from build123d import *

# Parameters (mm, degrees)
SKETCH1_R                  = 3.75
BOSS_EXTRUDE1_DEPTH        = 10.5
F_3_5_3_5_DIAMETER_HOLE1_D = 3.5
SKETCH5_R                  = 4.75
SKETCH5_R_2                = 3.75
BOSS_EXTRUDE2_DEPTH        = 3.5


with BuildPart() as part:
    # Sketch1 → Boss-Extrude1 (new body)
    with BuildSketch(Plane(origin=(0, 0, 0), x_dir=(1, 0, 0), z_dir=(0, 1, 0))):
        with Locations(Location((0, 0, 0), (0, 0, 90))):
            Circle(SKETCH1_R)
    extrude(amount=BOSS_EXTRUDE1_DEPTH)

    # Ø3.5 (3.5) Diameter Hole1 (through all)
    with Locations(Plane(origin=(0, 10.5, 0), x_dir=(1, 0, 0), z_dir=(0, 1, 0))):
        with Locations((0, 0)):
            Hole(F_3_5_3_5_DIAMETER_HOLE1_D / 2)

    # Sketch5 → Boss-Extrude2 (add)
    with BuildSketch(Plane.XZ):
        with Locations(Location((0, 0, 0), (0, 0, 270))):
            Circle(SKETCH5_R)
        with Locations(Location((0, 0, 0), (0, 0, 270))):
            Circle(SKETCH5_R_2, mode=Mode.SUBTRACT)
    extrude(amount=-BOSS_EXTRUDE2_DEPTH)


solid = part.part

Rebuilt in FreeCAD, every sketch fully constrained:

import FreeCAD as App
import Part
import Sketcher
from FreeCAD import Vector

doc = App.newDocument("Part")
body = doc.addObject("PartDesign::Body", "Body")

# Sketch on XZ plane
sketch1 = body.newObject("Sketcher::SketchObject", "Sketch")
sketch1.AttachmentSupport = (doc.getObject("XZ_Plane"), [""])
sketch1.MapMode = "FlatFace"
sketch1.addGeometry(Part.Circle(Vector(0, 0, 0), Vector(0, 0, 1), 3.8), False)
sketch1.addConstraint([
    Sketcher.Constraint("Coincident", 0, 3, -1, 1),
    Sketcher.Constraint("Diameter", 0, 7.5),
])
pad1 = body.newObject("PartDesign::Pad", "Pad")
pad1.Profile = sketch1
pad1.Length = 10.5
pad1.Reversed = True

# Sketch on XZ plane
sketch2 = body.newObject("Sketcher::SketchObject", "Sketch001")
sketch2.AttachmentSupport = (doc.getObject("XZ_Plane"), [""])
sketch2.MapMode = "FlatFace"
sketch2.AttachmentOffset = App.Placement(Vector(0, 0, -10.5), App.Rotation())
sketch2.addGeometry(Part.Circle(Vector(0, 0, 0), Vector(0, 0, 1), 1.8), False)
sketch2.addConstraint([
    Sketcher.Constraint("Coincident", 0, 3, -1, 1),
    Sketcher.Constraint("Diameter", 0, 3.5),
])
doc.recompute()
hole = body.newObject("PartDesign::Hole", "Hole")
hole.Profile = sketch2
hole.ThreadType = "None"
hole.Diameter = 3.5
hole.DepthType = "ThroughAll"
hole.Reversed = True

# Sketch on XZ plane
sketch3 = body.newObject("Sketcher::SketchObject", "Sketch002")
sketch3.AttachmentSupport = (doc.getObject("XZ_Plane"), [""])
sketch3.MapMode = "FlatFace"
sketch3.addGeometry([
    Part.Circle(Vector(0, 0, 0), Vector(0, 0, 1), 4.8),
    Part.Circle(Vector(0, 0, 0), Vector(0, 0, 1), 3.8),
], False)
sketch3.addConstraint([
    Sketcher.Constraint("Coincident", 0, 3, -1, 1),
    Sketcher.Constraint("Coincident", 1, 3, -1, 1),
    Sketcher.Constraint("Diameter", 0, 9.5),
    Sketcher.Constraint("Diameter", 1, 7.5),
])
pad2 = body.newObject("PartDesign::Pad", "Pad001")
pad2.Profile = sketch3
pad2.Length = 3.5
pad2.Reversed = True

doc.recompute()
